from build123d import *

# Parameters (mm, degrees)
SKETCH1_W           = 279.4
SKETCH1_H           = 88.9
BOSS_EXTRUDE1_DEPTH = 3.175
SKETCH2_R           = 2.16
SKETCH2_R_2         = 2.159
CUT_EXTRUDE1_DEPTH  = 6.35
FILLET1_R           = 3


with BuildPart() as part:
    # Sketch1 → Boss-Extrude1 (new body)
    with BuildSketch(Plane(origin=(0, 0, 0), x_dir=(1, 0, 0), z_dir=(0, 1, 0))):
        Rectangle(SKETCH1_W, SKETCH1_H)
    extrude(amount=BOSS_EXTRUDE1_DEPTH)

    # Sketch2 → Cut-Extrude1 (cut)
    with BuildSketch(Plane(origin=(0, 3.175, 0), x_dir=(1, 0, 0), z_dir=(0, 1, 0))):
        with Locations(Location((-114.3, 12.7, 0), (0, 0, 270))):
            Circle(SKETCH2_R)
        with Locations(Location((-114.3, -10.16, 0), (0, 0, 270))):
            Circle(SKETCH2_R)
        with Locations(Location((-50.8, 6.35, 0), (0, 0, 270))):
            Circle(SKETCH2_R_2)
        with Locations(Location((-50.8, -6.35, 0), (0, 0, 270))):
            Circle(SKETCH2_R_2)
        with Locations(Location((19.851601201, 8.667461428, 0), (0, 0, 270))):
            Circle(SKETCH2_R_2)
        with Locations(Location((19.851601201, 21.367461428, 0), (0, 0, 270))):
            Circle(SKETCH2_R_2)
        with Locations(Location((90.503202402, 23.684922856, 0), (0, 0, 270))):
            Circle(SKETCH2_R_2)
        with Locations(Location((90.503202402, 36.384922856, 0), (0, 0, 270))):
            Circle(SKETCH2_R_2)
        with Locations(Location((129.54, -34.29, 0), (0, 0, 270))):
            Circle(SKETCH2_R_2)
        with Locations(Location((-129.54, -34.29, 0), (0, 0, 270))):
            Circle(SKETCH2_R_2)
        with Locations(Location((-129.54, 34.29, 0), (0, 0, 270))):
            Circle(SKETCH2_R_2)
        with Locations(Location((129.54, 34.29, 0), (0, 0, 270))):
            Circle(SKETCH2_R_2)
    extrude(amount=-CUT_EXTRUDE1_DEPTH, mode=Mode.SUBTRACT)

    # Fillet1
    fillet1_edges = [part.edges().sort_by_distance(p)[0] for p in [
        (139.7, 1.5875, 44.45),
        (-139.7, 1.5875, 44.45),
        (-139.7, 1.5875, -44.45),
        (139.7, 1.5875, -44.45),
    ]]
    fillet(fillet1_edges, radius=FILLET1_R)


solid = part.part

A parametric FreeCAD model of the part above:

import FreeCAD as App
import Part
import Sketcher
Q = App.Units.Quantity


def edges_at(feature, points):
    """Names of the edges that pass closest to the given points."""
    edges = feature.Shape.Edges
    near = lambda p: min(range(len(edges)), key=lambda i: edges[i].distToShape(Part.Vertex(*p))[0])
    return sorted({f"Edge{near(p) + 1}" for p in points})


def add_polygon(sketch, points):
    """Adds a closed chain of lines whose ends are joined by coincident constraints."""
    first, n = sketch.GeometryCount, len(points)
    for a, b in zip(points, points[1:] + points[:1]):
        sketch.addGeometry(Part.LineSegment(App.Vector(*a, 0), App.Vector(*b, 0)), False)
    for i in range(n):
        sketch.addConstraint(Sketcher.Constraint("Coincident", first + i, 2, first + (i + 1) % n, 1))

doc = App.newDocument("Part")
body = doc.addObject("PartDesign::Body", "Body")

sketch1 = body.newObject("Sketcher::SketchObject", "Sketch")
sketch1.AttachmentSupport = (doc.getObject("XZ_Plane"), [""])
sketch1.MapMode = "FlatFace"
add_polygon(sketch1, [(-140, -44), (-140, 44), (140, 44), (140, -44)])
sketch1.addConstraint([
    Sketcher.Constraint("Vertical", 0),
    Sketcher.Constraint("Horizontal", 1),
    Sketcher.Constraint("Vertical", 2),
    Sketcher.Constraint("Horizontal", 3),
    Sketcher.Constraint("Symmetric", 0, 2, 2, 2, -1, 1),
    Sketcher.Constraint("DistanceX", 1, 1, 1, 2, Q("11 in")),
    Sketcher.Constraint("DistanceY", 0, 1, 0, 2, Q("3.5 in")),
])
pad1 = body.newObject("PartDesign::Pad", "Pad")
pad1.Profile = sketch1
pad1.Length = Q("0.125 in")
pad1.Reversed = True

sketch2 = body.newObject("Sketcher::SketchObject", "Sketch001")
sketch2.AttachmentSupport = (doc.getObject("XZ_Plane"), [""])
sketch2.MapMode = "FlatFace"
sketch2.AttachmentOffset = App.Placement(App.Vector(0, 0, -0.125 * 25.4), App.Rotation())
sketch2.addGeometry([
    Part.Circle(App.Vector(-114.3, -12.7, 0), App.Vector(0, 0, 1), 2.2),
    Part.Circle(App.Vector(-114.3, 10.2, 0), App.Vector(0, 0, 1), 2.2),
    Part.Circle(App.Vector(-50.8, -6.3, 0), App.Vector(0, 0, 1), 2.2),
    Part.Circle(App.Vector(-50.8, 6.3, 0), App.Vector(0, 0, 1), 2.2),
    Part.Circle(App.Vector(19.9, -8.7, 0), App.Vector(0, 0, 1), 2.2),
    Part.Circle(App.Vector(19.9, -21.4, 0), App.Vector(0, 0, 1), 2.2),
    Part.Circle(App.Vector(90.5, -23.7, 0), App.Vector(0, 0, 1), 2.2),
    Part.Circle(App.Vector(90.5, -36.4, 0), App.Vector(0, 0, 1), 2.2),
    Part.Circle(App.Vector(129.5, 34.3, 0), App.Vector(0, 0, 1), 2.2),
    Part.Circle(App.Vector(-129.5, 34.3, 0), App.Vector(0, 0, 1), 2.2),
    Part.Circle(App.Vector(-129.5, -34.3, 0), App.Vector(0, 0, 1), 2.2),
    Part.Circle(App.Vector(129.5, -34.3, 0), App.Vector(0, 0, 1), 2.2),
], False)
sketch2.addConstraint([
    Sketcher.Constraint("Equal", 0, 1),
    Sketcher.Constraint("Equal", 2, 3),
    Sketcher.Constraint("Equal", 3, 4),
    Sketcher.Constraint("Equal", 4, 5),
    Sketcher.Constraint("Equal", 5, 6),
    Sketcher.Constraint("Equal", 6, 7),
    Sketcher.Constraint("Equal", 7, 8),
    Sketcher.Constraint("Equal", 8, 9),
    Sketcher.Constraint("Equal", 9, 10),
    Sketcher.Constraint("Equal", 10, 11),
    Sketcher.Constraint("Symmetric", 8, 3, 10, 3, -1, 1),
    Sketcher.Constraint("Symmetric", 9, 3, 11, 3, -1, 1),
    Sketcher.Constraint("Symmetric", 8, 3, 9, 3, -2),
    Sketcher.Constraint("Symmetric", 2, 3, 3, 3, -1),
    Sketcher.Constraint("Vertical", 0, 3, 1, 3),
    Sketcher.Constraint("Vertical", 4, 3, 5, 3),
    Sketcher.Constraint("Vertical", 6, 3, 7, 3),
    Sketcher.Constraint("Diameter", 2, Q("0.17 in")),
    Sketcher.Constraint("DistanceX", 2, 3, -1, 1, Q("2 in")),
    Sketcher.Constraint("DistanceX", 0, 3, -1, 1, Q("4.5 in")),
    Sketcher.Constraint("DistanceY", 0, 3, -1, 1, Q("0.5 in")),
    Sketcher.Constraint("DistanceY", -1, 1, 1, 3, Q("0.4 in")),
    Sketcher.Constraint("DistanceX", -1, 1, 8, 3, Q("5.1 in")),
    Sketcher.Constraint("DistanceY", 2, 3, 3, 3, Q("0.5 in")),
    Sketcher.Constraint("DistanceY", 5, 3, 4, 3, Q("0.5 in")),
    Sketcher.Constraint("DistanceY", 7, 3, 6, 3, Q("0.5 in")),
    Sketcher.Constraint("DistanceY", 3, 3, 8, 3, Q("1.1 in")),
    Sketcher.Constraint("Diameter", 0, 4.32),
    Sketcher.Constraint("DistanceX", -1, 1, 4, 3, 19.851601),
    Sketcher.Constraint("DistanceX", 5, 3, 6, 3, 70.651601),
    Sketcher.Constraint("DistanceY", 4, 3, -1, 1, 8.667461),
    Sketcher.Constraint("DistanceY", 6, 3, 5, 3, 2.317461),
])
pocket1 = body.newObject("PartDesign::Pocket", "Pocket")
pocket1.Profile = sketch2
pocket1.Length = Q("0.25 in")
pocket1.Reversed = True
doc.recompute()

fillet = body.newObject("PartDesign::Fillet", "Fillet")
fillet.Base = (pocket1, edges_at(pocket1, [
    (139.7, 1.587, 44.45),
    (-139.7, 1.587, 44.45),
    (-139.7, 1.587, -44.45),
    (139.7, 1.587, -44.45),
]))
fillet.Radius = 3

doc.recompute()
